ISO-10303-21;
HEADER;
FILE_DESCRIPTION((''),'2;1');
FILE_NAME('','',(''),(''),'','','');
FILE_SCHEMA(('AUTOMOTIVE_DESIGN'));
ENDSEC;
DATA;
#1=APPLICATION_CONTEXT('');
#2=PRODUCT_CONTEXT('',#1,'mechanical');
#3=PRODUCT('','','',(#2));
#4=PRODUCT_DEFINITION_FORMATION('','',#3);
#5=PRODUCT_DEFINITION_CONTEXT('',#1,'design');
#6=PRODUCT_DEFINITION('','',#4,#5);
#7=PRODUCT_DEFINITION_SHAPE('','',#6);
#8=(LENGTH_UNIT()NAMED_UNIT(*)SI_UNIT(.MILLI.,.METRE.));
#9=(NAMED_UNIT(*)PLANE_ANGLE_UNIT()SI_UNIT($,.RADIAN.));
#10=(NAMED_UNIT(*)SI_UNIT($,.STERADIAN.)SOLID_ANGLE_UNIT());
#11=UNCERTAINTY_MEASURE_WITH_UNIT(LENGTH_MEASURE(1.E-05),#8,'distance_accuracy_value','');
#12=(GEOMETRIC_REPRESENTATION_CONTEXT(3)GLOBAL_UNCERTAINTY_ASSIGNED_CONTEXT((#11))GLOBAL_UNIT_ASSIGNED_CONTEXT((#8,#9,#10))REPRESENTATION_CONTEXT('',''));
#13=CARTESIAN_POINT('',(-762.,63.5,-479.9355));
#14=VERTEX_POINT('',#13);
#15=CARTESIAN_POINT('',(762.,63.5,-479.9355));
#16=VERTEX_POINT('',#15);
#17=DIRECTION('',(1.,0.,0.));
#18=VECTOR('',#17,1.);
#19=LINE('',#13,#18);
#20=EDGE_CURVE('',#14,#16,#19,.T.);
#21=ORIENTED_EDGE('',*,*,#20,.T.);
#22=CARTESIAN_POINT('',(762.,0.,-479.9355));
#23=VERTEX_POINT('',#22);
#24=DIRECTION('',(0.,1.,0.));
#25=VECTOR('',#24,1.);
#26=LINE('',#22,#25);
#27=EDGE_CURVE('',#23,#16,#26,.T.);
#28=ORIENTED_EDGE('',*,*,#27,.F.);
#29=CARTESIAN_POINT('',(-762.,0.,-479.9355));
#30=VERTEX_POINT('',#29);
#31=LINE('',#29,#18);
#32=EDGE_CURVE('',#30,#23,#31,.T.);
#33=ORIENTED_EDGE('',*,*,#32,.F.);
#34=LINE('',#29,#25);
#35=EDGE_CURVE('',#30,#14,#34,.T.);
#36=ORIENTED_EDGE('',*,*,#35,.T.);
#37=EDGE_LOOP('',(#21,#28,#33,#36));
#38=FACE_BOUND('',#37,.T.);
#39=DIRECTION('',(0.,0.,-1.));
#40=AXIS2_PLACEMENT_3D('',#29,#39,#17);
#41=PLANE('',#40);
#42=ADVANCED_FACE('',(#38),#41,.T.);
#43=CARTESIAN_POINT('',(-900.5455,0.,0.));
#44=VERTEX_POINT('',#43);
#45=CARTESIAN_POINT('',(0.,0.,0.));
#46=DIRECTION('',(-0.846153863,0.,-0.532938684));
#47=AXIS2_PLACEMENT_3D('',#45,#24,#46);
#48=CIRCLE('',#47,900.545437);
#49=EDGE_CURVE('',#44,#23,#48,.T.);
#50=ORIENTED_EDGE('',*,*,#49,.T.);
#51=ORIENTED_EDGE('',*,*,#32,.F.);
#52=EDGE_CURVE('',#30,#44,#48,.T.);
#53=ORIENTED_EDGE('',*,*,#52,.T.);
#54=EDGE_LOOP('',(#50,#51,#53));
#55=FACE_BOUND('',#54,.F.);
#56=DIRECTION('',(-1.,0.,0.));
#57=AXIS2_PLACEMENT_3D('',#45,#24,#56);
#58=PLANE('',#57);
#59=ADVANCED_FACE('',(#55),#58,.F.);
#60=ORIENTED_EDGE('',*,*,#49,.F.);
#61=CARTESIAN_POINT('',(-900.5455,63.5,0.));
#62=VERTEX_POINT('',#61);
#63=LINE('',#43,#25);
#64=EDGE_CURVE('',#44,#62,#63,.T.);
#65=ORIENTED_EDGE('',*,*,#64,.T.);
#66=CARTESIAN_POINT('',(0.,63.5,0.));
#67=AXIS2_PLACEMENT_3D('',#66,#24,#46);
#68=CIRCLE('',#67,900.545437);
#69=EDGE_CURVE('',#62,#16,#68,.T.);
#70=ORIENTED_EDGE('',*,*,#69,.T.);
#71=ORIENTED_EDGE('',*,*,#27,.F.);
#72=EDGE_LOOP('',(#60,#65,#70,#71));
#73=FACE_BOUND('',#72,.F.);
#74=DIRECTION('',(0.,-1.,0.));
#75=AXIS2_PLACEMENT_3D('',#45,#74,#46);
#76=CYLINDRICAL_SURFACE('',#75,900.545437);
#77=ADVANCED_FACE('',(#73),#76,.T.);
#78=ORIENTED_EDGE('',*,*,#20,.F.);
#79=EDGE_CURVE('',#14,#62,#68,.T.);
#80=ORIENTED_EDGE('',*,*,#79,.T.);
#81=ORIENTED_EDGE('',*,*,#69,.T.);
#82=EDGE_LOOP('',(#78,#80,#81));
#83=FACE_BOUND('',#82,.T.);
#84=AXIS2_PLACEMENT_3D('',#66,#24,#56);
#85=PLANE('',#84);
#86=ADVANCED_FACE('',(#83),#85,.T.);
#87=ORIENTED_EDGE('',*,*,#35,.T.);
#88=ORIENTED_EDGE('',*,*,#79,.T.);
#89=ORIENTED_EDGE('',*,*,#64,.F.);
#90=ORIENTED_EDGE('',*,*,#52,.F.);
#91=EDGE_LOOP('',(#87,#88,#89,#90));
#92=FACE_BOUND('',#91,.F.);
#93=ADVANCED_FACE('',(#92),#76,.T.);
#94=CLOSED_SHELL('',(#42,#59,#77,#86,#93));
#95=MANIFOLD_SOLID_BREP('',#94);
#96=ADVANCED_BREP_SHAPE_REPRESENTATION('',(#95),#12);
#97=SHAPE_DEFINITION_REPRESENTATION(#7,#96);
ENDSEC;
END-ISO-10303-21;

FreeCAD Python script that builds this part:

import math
import FreeCAD as App
import Part
import Sketcher
Q = App.Units.Quantity

doc = App.newDocument("Part")
params = doc.addObject("Spreadsheet::Sheet", "Params")
for row, (alias, value) in enumerate([
    ("sketch1_width", "60 in"),
    ("pad1_length", "2.5 in"),
], start=1):
    params.set(f"A{row}", alias)
    params.set(f"B{row}", "=" + value)
    params.setAlias(f"B{row}", alias)

body = doc.addObject("PartDesign::Body", "Body")

sketch1 = doc.addObject("Sketcher::SketchObject", "Sketch")
body.addObject(sketch1)
sketch1.AttachmentSupport = (doc.XZ_Plane, [""])
sketch1.MapMode = "FlatFace"
sketch1.addGeometry([
    Part.LineSegment(App.Vector(762, -480, 0), App.Vector(-762, -480, 0)),
    Part.ArcOfCircle(Part.Circle(App.Vector(0, 0, 0), App.Vector(0, 0, 1), 901), math.radians(-32), math.radians(212)),
], False)
sketch1.addConstraint([
    Sketcher.Constraint("Coincident", 0, 1, 1, 1),
    Sketcher.Constraint("Coincident", 1, 2, 0, 2),
    Sketcher.Constraint("Horizontal", 0),
    Sketcher.Constraint("Coincident", 1, 3, -1, 1),
    Sketcher.Constraint("DistanceX", 0, 2, 0, 1, Q("60 in")),
    Sketcher.Constraint("Radius", 1, Q("900.5454 mm")),
])
sketch1.setExpression("Constraints[4]", "Params.sketch1_width")
pad1 = doc.addObject("PartDesign::Pad", "Pad")
body.addObject(pad1)
pad1.Profile = sketch1
pad1.setExpression("Length", "Params.pad1_length")
pad1.Reversed = True

doc.recompute()
